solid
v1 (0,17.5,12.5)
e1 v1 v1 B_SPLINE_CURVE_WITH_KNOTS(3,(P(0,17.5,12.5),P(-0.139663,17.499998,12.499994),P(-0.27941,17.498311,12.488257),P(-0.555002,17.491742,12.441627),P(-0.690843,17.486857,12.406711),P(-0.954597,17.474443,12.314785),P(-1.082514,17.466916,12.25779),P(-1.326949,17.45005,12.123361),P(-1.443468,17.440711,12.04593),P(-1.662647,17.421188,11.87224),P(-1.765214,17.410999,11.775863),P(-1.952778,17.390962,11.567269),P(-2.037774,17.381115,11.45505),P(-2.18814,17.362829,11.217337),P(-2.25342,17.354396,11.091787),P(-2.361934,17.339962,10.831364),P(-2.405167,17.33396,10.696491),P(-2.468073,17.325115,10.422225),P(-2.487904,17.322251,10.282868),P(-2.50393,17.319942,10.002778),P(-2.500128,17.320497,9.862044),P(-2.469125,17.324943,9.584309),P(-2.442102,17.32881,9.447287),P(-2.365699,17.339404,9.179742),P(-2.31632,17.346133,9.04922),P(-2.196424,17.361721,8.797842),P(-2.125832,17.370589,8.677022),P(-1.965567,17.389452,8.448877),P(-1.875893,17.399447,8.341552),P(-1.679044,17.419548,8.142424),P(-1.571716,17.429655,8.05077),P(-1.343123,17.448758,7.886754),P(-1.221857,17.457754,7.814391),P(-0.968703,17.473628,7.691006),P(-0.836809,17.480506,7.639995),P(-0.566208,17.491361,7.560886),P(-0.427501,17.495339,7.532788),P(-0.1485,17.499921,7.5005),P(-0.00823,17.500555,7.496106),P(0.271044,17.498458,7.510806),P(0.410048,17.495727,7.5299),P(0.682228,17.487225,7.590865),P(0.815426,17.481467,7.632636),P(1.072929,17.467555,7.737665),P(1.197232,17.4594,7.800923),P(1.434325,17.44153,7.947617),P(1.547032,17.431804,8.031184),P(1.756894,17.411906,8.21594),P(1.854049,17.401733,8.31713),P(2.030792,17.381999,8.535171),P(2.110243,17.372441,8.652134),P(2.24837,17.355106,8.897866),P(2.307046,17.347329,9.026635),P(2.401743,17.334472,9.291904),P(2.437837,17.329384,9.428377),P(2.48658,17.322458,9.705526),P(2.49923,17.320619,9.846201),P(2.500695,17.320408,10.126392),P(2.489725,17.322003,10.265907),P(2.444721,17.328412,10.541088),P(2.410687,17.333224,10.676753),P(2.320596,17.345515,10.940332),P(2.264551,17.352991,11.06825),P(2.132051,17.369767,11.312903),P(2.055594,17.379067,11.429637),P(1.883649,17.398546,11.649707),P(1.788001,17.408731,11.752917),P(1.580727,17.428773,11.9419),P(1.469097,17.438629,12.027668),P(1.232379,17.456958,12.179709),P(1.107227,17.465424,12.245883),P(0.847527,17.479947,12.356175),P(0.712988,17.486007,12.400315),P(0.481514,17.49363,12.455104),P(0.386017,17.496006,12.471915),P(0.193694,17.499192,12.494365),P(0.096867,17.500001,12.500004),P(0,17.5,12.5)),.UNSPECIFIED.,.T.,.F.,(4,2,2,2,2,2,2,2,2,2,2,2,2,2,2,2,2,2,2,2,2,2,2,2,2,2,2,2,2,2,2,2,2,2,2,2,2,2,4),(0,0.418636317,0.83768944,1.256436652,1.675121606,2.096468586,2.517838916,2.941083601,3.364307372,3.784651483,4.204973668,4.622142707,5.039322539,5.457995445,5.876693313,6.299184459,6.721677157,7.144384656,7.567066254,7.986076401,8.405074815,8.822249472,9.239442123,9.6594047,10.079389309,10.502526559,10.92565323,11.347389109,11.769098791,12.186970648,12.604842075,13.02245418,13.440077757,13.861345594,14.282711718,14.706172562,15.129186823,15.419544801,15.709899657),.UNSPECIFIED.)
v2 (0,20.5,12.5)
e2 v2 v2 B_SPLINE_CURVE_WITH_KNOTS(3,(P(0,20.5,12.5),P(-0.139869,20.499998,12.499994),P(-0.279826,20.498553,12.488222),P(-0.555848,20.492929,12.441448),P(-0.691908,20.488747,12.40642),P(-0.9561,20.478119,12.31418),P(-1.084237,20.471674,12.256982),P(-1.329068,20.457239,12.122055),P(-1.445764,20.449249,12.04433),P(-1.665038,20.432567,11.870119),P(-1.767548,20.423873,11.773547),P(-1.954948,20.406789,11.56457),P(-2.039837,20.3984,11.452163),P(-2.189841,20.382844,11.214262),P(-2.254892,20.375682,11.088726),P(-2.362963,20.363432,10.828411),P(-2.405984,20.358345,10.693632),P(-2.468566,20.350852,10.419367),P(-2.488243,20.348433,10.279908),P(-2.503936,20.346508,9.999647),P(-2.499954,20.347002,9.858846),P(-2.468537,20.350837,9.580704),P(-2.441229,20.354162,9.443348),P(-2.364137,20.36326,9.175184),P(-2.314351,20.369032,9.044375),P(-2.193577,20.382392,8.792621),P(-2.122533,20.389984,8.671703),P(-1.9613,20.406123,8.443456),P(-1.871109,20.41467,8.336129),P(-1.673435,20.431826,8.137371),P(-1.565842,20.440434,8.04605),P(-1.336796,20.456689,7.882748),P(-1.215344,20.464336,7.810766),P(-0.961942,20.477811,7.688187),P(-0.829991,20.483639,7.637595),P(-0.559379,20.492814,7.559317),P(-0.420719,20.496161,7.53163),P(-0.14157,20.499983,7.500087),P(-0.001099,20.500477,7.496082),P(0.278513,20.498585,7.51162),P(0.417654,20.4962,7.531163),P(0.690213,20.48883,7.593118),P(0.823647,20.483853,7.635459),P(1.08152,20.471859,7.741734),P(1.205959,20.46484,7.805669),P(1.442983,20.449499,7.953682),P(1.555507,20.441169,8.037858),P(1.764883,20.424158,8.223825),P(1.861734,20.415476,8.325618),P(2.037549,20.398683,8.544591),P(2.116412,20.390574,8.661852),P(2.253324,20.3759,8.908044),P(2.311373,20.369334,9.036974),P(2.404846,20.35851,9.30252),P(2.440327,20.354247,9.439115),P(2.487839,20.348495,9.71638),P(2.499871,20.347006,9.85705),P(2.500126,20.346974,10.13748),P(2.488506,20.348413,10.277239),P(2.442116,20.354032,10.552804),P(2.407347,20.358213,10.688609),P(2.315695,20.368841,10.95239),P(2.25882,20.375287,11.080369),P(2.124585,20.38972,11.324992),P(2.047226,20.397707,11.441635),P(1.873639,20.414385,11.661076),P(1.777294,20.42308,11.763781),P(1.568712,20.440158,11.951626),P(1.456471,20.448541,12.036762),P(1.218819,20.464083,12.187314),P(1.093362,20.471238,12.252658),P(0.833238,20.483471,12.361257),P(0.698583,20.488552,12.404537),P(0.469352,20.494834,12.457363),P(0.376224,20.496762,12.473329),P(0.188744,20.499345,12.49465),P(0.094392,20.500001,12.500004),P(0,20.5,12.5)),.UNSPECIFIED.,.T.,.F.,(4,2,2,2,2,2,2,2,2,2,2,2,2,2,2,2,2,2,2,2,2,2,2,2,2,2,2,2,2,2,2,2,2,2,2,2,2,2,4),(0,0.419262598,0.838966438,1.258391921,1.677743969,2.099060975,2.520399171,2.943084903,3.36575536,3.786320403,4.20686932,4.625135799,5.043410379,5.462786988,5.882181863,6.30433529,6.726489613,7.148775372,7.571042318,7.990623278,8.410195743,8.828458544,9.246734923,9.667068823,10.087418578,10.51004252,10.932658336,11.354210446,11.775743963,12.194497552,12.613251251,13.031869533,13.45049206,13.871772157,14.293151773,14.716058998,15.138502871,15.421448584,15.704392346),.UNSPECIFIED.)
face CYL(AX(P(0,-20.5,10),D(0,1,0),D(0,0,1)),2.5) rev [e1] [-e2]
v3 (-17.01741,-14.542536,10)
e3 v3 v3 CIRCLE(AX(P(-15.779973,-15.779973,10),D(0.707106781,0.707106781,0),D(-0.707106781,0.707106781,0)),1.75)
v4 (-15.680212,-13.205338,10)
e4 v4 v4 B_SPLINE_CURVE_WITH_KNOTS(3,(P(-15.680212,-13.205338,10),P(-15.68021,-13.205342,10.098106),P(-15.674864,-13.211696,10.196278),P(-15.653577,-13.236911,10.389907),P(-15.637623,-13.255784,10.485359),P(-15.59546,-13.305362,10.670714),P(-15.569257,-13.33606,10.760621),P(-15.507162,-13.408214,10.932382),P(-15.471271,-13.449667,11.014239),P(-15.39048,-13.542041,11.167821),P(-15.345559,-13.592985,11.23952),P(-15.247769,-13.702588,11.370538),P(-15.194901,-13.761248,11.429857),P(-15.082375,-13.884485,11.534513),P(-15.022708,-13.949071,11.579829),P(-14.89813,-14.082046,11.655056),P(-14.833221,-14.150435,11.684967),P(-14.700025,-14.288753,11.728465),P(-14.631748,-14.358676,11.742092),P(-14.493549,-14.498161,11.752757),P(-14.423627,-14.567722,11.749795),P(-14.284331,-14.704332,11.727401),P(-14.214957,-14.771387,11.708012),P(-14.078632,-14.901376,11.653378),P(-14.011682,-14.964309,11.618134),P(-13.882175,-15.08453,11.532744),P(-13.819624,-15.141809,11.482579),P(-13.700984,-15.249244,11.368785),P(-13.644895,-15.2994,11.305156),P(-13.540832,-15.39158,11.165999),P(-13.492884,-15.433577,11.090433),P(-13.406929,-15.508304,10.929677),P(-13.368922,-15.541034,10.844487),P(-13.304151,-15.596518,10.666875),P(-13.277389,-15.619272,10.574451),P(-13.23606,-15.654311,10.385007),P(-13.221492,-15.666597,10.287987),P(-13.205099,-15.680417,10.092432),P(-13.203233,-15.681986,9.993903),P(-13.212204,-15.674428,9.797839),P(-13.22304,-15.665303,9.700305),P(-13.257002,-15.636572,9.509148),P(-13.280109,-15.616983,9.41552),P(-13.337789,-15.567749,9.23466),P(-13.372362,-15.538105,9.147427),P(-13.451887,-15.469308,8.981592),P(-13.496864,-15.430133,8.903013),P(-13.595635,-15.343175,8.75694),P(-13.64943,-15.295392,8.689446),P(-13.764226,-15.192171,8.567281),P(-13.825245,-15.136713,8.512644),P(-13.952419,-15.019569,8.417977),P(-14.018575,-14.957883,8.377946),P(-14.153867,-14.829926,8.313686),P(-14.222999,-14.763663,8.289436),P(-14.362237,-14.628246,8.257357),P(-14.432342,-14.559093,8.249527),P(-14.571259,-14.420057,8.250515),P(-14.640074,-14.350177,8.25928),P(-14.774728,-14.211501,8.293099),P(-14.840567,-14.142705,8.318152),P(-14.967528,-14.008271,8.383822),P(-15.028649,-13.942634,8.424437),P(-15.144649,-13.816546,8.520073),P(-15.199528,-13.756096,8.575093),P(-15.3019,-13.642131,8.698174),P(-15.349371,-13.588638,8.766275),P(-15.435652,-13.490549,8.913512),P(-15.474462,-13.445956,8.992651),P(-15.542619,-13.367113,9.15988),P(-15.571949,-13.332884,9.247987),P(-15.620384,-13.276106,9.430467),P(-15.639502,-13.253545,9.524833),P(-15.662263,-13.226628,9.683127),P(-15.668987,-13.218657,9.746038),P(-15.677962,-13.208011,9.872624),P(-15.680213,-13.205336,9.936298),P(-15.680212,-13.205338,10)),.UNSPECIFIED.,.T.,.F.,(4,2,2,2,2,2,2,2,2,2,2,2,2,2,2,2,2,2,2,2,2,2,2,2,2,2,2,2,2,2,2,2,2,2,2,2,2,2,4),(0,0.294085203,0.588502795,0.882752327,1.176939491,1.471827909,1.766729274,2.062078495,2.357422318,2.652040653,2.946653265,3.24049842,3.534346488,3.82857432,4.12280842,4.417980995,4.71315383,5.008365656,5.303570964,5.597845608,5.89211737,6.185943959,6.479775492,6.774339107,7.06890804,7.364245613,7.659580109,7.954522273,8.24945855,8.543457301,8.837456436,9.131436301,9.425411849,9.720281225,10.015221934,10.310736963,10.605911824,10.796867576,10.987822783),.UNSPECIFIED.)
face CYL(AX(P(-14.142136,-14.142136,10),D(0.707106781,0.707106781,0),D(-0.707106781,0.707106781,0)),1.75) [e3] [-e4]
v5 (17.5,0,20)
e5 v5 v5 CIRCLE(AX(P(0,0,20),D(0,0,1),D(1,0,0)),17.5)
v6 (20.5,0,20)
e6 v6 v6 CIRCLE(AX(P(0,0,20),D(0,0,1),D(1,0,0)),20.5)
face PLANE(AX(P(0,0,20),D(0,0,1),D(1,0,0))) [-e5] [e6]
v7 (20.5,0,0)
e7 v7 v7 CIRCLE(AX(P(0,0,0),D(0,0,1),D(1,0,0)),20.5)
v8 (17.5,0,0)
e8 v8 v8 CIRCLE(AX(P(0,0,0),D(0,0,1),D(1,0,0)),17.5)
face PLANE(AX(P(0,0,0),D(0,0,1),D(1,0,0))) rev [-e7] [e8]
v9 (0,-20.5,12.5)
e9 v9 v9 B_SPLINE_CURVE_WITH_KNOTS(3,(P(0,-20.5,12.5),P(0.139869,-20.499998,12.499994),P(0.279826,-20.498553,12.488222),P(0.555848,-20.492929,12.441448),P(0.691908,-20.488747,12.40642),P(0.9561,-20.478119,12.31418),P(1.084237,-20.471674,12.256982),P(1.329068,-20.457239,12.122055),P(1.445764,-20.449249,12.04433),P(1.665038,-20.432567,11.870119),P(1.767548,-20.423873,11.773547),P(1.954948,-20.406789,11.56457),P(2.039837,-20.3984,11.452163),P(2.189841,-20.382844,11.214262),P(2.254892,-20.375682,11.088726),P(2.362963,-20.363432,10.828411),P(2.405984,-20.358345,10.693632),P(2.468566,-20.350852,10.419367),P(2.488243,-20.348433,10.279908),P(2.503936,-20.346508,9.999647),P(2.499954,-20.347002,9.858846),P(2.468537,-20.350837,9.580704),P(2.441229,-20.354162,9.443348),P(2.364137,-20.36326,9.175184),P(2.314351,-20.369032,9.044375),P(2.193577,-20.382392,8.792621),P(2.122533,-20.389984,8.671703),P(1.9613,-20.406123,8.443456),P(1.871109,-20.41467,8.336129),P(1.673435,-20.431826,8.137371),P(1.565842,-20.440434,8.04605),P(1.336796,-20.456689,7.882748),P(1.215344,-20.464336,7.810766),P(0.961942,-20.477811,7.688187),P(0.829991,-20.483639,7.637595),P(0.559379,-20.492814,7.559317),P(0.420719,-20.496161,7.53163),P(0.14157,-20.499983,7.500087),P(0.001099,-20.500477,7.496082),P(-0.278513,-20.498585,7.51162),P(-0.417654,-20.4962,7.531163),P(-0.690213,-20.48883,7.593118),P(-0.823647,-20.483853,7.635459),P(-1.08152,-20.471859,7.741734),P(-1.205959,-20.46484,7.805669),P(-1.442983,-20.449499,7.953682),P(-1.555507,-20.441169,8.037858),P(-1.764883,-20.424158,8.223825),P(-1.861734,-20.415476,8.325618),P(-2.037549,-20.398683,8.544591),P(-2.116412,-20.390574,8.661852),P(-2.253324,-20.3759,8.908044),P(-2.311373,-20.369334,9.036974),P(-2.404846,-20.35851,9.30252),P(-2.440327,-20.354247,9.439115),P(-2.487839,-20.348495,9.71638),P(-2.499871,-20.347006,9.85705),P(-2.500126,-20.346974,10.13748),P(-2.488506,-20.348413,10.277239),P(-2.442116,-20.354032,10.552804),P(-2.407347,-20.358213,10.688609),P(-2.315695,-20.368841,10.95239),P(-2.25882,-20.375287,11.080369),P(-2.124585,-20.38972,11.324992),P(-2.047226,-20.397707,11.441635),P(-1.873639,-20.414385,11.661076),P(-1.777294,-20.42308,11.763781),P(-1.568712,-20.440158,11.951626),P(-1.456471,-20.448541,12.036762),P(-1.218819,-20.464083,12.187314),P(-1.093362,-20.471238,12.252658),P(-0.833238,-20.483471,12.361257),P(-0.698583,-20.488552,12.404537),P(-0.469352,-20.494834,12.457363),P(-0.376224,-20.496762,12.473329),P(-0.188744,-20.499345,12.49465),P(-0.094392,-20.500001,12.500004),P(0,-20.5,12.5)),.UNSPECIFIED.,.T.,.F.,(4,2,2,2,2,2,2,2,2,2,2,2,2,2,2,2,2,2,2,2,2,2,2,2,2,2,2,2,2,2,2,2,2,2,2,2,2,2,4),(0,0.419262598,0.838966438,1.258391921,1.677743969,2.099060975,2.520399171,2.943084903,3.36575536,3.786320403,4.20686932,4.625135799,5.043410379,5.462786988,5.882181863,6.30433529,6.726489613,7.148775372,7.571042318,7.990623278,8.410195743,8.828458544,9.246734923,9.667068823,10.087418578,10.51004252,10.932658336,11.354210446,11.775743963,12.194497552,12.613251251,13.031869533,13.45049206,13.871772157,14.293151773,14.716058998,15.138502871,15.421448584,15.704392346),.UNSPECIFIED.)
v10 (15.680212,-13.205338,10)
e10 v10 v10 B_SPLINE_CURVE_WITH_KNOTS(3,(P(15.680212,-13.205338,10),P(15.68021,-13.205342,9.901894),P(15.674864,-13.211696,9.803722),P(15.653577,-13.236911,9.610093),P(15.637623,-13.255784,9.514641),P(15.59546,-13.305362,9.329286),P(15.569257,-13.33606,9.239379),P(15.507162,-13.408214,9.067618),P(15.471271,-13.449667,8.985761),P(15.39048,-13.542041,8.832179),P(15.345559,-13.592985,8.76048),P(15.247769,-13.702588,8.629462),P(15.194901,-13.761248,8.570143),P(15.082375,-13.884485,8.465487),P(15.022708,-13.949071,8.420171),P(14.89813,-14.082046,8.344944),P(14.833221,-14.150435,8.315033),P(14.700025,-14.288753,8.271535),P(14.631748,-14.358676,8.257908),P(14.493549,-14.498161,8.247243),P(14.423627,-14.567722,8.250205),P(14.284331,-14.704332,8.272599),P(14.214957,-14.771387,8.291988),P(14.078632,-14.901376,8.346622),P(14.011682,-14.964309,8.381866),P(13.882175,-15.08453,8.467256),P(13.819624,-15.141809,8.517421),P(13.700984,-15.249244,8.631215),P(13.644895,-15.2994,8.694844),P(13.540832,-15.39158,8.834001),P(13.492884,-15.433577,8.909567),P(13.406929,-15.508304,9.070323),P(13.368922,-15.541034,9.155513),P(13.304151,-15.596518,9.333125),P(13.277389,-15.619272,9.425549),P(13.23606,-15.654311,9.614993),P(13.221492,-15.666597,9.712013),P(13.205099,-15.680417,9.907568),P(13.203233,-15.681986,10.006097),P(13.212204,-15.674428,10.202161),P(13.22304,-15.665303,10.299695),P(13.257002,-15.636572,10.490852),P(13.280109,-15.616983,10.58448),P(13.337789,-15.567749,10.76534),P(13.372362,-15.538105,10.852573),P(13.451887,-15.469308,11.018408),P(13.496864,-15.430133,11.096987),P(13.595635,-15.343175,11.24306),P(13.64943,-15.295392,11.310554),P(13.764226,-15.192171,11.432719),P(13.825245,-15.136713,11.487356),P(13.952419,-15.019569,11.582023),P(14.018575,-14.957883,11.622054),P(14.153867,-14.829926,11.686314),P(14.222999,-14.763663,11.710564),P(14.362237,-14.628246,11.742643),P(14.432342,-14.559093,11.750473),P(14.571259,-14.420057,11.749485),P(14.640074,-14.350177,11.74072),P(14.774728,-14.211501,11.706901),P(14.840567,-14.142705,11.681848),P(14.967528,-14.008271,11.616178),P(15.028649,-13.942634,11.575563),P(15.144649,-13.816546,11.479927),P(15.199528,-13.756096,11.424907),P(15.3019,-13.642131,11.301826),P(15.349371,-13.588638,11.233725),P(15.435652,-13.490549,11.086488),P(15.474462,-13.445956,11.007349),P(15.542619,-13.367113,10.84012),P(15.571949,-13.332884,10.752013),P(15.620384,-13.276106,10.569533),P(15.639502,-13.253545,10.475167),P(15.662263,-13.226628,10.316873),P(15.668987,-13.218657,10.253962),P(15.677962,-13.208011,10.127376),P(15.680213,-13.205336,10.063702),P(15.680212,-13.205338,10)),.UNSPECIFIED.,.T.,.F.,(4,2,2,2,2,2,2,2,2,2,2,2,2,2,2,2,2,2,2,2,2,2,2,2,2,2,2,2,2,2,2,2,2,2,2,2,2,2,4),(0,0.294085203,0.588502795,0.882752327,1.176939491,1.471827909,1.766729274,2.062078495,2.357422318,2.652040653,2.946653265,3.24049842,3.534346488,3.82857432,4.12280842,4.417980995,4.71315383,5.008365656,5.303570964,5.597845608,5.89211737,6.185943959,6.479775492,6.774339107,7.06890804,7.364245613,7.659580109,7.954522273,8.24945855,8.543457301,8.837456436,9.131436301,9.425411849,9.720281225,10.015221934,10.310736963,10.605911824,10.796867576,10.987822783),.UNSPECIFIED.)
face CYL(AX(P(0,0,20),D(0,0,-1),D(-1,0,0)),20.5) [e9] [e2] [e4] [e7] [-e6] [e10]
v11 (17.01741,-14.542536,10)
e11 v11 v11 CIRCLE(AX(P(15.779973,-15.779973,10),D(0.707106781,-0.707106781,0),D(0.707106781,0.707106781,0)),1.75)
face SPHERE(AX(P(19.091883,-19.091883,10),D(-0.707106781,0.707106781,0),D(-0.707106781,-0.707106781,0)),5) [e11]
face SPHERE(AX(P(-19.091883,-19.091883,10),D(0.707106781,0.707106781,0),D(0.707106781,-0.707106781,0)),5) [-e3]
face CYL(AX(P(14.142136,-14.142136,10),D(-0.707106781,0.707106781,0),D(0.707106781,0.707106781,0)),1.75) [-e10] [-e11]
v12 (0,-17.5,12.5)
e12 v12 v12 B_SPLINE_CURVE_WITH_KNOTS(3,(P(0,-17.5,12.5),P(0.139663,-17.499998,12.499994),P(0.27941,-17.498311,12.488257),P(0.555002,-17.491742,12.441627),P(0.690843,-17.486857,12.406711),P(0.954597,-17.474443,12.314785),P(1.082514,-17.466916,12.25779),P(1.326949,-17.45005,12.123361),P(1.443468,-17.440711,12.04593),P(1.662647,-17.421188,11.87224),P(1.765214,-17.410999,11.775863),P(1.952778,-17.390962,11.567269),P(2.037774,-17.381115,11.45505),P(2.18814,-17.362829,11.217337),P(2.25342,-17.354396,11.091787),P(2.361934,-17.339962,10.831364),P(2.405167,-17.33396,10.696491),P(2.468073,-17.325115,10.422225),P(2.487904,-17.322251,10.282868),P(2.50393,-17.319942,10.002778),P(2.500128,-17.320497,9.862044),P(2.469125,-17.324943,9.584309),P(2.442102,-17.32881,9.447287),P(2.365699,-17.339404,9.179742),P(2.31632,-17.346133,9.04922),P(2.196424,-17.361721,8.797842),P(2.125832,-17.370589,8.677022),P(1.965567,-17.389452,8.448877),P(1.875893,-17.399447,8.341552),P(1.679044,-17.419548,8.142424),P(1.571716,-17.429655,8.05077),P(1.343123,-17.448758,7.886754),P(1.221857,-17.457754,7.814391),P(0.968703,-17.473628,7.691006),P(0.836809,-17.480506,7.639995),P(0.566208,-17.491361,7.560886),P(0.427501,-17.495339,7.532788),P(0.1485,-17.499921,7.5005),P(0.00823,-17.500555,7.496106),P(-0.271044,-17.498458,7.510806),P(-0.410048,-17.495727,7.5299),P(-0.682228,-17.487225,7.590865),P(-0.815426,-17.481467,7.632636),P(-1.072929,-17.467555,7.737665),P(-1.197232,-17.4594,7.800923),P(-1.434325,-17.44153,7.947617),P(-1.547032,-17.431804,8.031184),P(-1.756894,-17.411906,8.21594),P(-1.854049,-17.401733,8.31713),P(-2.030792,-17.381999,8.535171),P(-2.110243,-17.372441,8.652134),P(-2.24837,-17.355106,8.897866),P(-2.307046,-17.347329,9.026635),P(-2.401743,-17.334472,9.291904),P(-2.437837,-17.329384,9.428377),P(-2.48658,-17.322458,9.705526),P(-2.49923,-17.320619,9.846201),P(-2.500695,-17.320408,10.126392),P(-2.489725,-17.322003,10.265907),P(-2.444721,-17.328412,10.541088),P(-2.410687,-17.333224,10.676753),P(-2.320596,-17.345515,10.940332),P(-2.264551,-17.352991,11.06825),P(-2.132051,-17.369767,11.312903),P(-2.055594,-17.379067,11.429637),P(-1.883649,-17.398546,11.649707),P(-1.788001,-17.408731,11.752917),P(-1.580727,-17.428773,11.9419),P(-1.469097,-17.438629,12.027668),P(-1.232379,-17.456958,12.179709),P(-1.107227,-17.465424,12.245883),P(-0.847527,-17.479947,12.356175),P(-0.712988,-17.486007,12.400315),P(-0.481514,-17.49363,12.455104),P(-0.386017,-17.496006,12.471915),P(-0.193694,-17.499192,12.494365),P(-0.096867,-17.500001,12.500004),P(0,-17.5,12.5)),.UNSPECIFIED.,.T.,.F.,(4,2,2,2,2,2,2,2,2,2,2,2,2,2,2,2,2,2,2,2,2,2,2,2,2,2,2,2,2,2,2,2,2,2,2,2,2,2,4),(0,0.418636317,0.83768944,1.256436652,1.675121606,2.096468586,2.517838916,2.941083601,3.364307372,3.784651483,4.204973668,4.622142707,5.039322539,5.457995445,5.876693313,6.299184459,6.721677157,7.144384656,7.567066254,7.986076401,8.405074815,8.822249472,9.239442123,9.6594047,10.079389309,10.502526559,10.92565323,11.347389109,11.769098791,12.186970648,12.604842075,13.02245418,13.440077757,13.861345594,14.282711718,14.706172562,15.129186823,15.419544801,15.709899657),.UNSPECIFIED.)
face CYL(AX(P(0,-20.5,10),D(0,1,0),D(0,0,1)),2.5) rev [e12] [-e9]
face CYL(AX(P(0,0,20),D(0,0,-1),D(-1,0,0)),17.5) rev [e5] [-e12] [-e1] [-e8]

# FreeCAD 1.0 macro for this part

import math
import FreeCAD as App
import Part
import Sketcher
from FreeCAD import Vector
Q = App.Units.Quantity

doc = App.newDocument("Part")
body = doc.addObject("PartDesign::Body", "Body")

# Sketch on XY plane
sketch1 = body.newObject("Sketcher::SketchObject", "Sketch")
sketch1.AttachmentSupport = (doc.getObject("XY_Plane"), [""])
sketch1.MapMode = "FlatFace"
sketch1.addGeometry(Part.Circle(Vector(0, 0, 0), Vector(0, 0, 1), 20), False)
sketch1.addGeometry(Part.Circle(Vector(0, 0, 0), Vector(0, 0, 1), 18), False)
sketch1.addConstraint(Sketcher.Constraint("Coincident", 0, 3, -1, 1))
sketch1.addConstraint(Sketcher.Constraint("Coincident", 1, 3, -1, 1))
sketch1.addConstraint(Sketcher.Constraint("Diameter", 0, Q("41 mm")))
sketch1.addConstraint(Sketcher.Constraint("Diameter", 1, Q("35 mm")))
pad1 = body.newObject("PartDesign::Pad", "Pad")
pad1.Profile = sketch1
pad1.Length = 20

# Sketch on XZ plane
sketch2 = body.newObject("Sketcher::SketchObject", "Sketch001")
sketch2.AttachmentSupport = (doc.getObject("XZ_Plane"), [""])
sketch2.MapMode = "FlatFace"
sketch2.addGeometry(Part.Circle(Vector(0, 10, 0), Vector(0, 0, 1), 2.5), False)
sketch2.addConstraint(Sketcher.Constraint("PointOnObject", 0, 3, -2))
sketch2.addConstraint(Sketcher.Constraint("Diameter", 0, Q("5 mm")))
sketch2.addConstraint(Sketcher.Constraint("DistanceY", -1, 1, 0, 3, Q("10 mm")))
pocket1 = body.newObject("PartDesign::Pocket", "Pocket")
pocket1.Profile = sketch2
pocket1.Type = "ThroughAll"
pocket1.Midplane = True

# Sketch on XY plane
sketch3 = body.newObject("Sketcher::SketchObject", "Sketch002")
sketch3.AttachmentSupport = (doc.getObject("XY_Plane"), [""])
sketch3.MapMode = "FlatFace"
sketch3.AttachmentOffset = App.Placement(Vector(0, 0, 10), App.Rotation())
sketch3.addGeometry(Part.LineSegment(Vector(-22.6, -22.6, 0), Vector(-14.1, -14.1, 0)), False)
sketch3.addGeometry(Part.LineSegment(Vector(-14.1, -14.1, 0), Vector(-12.9, -15.4, 0)), False)
sketch3.addGeometry(Part.LineSegment(Vector(-12.9, -15.4, 0), Vector(-14.5, -17, 0)), False)
sketch3.addGeometry(Part.ArcOfCircle(Part.Circle(Vector(-19.1, -19.1, 0), Vector(0, 0, 1), 5), math.radians(-135), math.radians(25)), False)
sketch3.addGeometry(Part.LineSegment(Vector(-14.1, -14.1, 0), Vector(-22.6, -22.6, 0)), True)  # axis
sketch3.addConstraint(Sketcher.Constraint("Coincident", 0, 2, 1, 1))
sketch3.addConstraint(Sketcher.Constraint("Coincident", 1, 2, 2, 1))
sketch3.addConstraint(Sketcher.Constraint("Coincident", 2, 2, 3, 2))
sketch3.addConstraint(Sketcher.Constraint("Coincident", 3, 1, 0, 1))
sketch3.addConstraint(Sketcher.Constraint("Coincident", 4, 1, 0, 2))
sketch3.addConstraint(Sketcher.Constraint("Coincident", 4, 2, 3, 1))
sketch3.addConstraint(Sketcher.Constraint("Perpendicular", 0, 1))
sketch3.addConstraint(Sketcher.Constraint("Perpendicular", 1, 2))
sketch3.addConstraint(Sketcher.Constraint("Radius", 3, Q("5 mm")))
sketch3.addConstraint(Sketcher.Constraint("Angle", 0, Q("45 deg")))
sketch3.addConstraint(Sketcher.Constraint("Distance", 0, Q("12 mm")))
sketch3.addConstraint(Sketcher.Constraint("Distance", 1, Q("1.75 mm")))
sketch3.addConstraint(Sketcher.Constraint("DistanceX", 1, 2, -1, 1, Q("12.904699 mm")))
sketch3.addConstraint(Sketcher.Constraint("DistanceX", 2, 2, 0, 2, Q("0.4004 mm")))
sketch3.addConstraint(Sketcher.Constraint("DistanceY", 2, 2, -1, 1, Q("17.01741 mm")))
revolution = body.newObject("PartDesign::Revolution", "Revolution")
revolution.Profile = sketch3
revolution.ReferenceAxis = (sketch3, ["Axis0"])
revolution.Angle = 360
doc.recompute()

mirrored = body.newObject("PartDesign::Mirrored", "Mirrored")
mirrored.Originals = [revolution]
mirrored.MirrorPlane = (doc.getObject("YZ_Plane"), [""])
body.Tip = mirrored

doc.recompute()
